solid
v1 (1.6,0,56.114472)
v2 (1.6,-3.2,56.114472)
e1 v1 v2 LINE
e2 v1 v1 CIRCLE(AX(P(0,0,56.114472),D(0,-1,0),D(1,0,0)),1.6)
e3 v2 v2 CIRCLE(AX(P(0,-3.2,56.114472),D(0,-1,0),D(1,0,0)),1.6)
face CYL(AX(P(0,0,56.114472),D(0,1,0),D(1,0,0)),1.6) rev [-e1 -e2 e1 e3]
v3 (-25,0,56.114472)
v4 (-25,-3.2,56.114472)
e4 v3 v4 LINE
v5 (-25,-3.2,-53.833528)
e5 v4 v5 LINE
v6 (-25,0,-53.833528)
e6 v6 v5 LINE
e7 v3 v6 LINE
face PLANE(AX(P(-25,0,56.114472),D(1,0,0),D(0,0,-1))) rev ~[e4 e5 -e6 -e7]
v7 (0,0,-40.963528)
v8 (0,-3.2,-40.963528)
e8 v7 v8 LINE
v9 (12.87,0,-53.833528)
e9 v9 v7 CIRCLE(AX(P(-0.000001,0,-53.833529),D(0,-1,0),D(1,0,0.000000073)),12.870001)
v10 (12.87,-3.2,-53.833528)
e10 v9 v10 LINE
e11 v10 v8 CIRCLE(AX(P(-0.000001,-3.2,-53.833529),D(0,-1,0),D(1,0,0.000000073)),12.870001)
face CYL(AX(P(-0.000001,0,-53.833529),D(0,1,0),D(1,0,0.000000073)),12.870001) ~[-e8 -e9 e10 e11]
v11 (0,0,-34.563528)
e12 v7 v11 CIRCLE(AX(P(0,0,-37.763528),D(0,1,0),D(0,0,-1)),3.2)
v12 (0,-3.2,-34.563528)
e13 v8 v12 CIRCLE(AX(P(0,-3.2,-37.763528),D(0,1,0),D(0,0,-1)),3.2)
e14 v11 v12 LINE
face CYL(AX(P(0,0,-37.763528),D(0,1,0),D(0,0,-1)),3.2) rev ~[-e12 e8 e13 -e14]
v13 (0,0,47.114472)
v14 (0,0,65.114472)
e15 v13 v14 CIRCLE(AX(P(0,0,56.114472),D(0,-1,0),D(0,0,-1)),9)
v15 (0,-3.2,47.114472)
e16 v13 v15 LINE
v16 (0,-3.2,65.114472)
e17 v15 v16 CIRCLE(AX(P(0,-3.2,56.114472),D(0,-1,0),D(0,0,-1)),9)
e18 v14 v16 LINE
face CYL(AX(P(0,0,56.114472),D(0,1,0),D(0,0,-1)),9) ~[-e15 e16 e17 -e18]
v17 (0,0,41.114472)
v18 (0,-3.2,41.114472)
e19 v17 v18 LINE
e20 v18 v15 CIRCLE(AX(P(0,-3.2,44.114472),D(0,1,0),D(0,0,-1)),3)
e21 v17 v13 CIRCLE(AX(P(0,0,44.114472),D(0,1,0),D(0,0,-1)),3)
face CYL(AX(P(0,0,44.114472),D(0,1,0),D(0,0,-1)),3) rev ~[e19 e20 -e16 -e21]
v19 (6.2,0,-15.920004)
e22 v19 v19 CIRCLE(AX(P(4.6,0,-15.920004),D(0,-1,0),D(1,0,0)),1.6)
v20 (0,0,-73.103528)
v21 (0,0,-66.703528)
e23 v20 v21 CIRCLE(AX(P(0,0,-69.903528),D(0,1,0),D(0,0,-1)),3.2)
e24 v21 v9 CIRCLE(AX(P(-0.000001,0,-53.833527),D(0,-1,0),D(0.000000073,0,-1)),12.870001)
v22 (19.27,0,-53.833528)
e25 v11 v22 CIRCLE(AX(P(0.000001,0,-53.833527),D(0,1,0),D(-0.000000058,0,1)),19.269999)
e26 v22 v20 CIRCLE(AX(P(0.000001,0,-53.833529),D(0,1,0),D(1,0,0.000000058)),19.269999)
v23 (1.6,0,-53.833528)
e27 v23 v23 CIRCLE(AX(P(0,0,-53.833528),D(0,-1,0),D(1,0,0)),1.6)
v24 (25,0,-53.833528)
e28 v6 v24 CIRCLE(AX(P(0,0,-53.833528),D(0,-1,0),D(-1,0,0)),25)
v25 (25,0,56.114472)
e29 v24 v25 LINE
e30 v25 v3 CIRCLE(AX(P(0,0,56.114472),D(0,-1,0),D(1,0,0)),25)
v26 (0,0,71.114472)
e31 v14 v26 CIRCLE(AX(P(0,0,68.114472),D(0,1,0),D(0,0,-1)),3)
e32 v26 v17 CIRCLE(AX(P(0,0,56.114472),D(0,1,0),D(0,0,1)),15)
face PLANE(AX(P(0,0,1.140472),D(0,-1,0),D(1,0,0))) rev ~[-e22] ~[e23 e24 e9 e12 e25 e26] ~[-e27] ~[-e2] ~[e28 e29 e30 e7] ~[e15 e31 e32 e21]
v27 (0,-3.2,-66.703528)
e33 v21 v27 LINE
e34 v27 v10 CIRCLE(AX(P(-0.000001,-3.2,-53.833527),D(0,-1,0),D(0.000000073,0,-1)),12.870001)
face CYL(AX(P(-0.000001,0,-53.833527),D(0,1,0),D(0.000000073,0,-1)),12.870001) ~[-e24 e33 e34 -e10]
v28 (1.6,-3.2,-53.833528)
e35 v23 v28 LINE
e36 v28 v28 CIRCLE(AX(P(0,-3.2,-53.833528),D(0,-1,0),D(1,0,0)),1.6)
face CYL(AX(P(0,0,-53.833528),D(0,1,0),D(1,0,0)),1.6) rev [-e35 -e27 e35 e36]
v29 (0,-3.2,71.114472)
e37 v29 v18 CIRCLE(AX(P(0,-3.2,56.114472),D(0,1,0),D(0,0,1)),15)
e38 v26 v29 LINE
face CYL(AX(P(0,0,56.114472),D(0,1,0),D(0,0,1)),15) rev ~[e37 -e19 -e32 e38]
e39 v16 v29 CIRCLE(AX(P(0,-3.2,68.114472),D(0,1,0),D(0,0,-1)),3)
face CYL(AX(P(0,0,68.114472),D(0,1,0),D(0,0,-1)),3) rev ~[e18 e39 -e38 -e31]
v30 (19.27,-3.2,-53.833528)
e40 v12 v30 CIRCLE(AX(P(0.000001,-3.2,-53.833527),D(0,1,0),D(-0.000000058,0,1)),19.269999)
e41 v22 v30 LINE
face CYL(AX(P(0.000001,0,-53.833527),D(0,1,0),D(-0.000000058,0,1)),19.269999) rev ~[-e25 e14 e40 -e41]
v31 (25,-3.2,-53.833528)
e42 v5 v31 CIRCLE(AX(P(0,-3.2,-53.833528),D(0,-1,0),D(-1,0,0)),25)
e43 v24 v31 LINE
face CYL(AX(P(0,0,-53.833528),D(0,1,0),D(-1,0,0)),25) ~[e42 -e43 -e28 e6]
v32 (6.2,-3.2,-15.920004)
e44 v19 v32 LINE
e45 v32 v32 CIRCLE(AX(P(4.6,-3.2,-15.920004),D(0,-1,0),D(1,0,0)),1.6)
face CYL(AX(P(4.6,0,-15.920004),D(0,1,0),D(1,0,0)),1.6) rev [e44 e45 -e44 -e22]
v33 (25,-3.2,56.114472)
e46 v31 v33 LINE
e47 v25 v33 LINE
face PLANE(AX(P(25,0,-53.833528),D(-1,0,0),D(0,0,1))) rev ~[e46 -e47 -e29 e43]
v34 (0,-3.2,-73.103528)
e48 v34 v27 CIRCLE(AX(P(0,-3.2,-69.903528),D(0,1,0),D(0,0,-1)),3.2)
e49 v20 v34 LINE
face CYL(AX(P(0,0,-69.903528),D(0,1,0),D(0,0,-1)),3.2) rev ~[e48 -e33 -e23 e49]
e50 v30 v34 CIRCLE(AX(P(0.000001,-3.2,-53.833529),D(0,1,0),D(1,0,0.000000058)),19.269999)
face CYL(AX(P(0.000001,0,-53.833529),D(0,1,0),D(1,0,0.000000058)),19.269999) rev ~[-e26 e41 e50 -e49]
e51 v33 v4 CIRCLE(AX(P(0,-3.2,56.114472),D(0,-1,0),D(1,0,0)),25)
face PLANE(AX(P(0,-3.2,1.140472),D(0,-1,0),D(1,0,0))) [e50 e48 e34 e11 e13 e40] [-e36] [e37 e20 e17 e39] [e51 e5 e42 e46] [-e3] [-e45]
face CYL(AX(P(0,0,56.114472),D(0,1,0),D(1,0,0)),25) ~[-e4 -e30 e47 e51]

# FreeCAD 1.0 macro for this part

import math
import FreeCAD as App
import Part
import Sketcher
from FreeCAD import Vector

doc = App.newDocument("Part")
body = doc.addObject("PartDesign::Body", "Body")

# Sketch on XZ plane
sketch1 = body.newObject("Sketcher::SketchObject", "Sketch")
sketch1.AttachmentSupport = (doc.getObject("XZ_Plane"), [""])
sketch1.MapMode = "FlatFace"
sketch1.addGeometry(Part.ArcOfCircle(Part.Circle(Vector(0, 56.1, 0), Vector(0, 0, 1), 25), math.radians(0), math.radians(180)), False)
sketch1.addGeometry(Part.LineSegment(Vector(-25, 56.1, 0), Vector(-25, -53.8, 0)), False)
sketch1.addGeometry(Part.ArcOfCircle(Part.Circle(Vector(0, -53.8, 0), Vector(0, 0, 1), 25), math.radians(180), math.radians(360)), False)
sketch1.addGeometry(Part.LineSegment(Vector(25, -53.8, 0), Vector(25, 56.1, 0)), False)
sketch1.addGeometry(Part.Circle(Vector(0, -53.8, 0), Vector(0, 0, 1), 1.6), False)
sketch1.addGeometry(Part.Circle(Vector(4.6, -15.9, 0), Vector(0, 0, 1), 1.6), False)
sketch1.addGeometry(Part.ArcOfCircle(Part.Circle(Vector(0, -53.8, 0), Vector(0, 0, 1), 19.3), math.radians(-90), math.radians(0)), False)
sketch1.addGeometry(Part.ArcOfCircle(Part.Circle(Vector(0, -69.9, 0), Vector(0, 0, 1), 3.2), math.radians(90), math.radians(270)), False)
sketch1.addGeometry(Part.ArcOfCircle(Part.Circle(Vector(0, -53.8, 0), Vector(0, 0, 1), 12.9), math.radians(-90), math.radians(0)), False)
sketch1.addGeometry(Part.ArcOfCircle(Part.Circle(Vector(0, -53.8, 0), Vector(0, 0, 1), 12.9), math.radians(0), math.radians(90)), False)
sketch1.addGeometry(Part.ArcOfCircle(Part.Circle(Vector(0, -37.8, 0), Vector(0, 0, 1), 3.2), math.radians(90), math.radians(270)), False)
sketch1.addGeometry(Part.ArcOfCircle(Part.Circle(Vector(0, -53.8, 0), Vector(0, 0, 1), 19.3), math.radians(0), math.radians(90)), False)
sketch1.addGeometry(Part.Circle(Vector(0, 56.1, 0), Vector(0, 0, 1), 1.6), False)
sketch1.addGeometry(Part.ArcOfCircle(Part.Circle(Vector(0, 56.1, 0), Vector(0, 0, 1), 15), math.radians(-90), math.radians(90)), False)
sketch1.addGeometry(Part.ArcOfCircle(Part.Circle(Vector(0, 44.1, 0), Vector(0, 0, 1), 3), math.radians(90), math.radians(270)), False)
sketch1.addGeometry(Part.ArcOfCircle(Part.Circle(Vector(0, 56.1, 0), Vector(0, 0, 1), 9), math.radians(-90), math.radians(90)), False)
sketch1.addGeometry(Part.ArcOfCircle(Part.Circle(Vector(0, 68.1, 0), Vector(0, 0, 1), 3), math.radians(90), math.radians(270)), False)
sketch1.addConstraint(Sketcher.Constraint("Tangent", 0, 2, 1, 1))
sketch1.addConstraint(Sketcher.Constraint("Tangent", 1, 2, 2, 1))
sketch1.addConstraint(Sketcher.Constraint("Tangent", 2, 2, 3, 1))
sketch1.addConstraint(Sketcher.Constraint("Tangent", 3, 2, 0, 1))
sketch1.addConstraint(Sketcher.Constraint("Tangent", 6, 1, 7, 2))
sketch1.addConstraint(Sketcher.Constraint("Tangent", 7, 1, 8, 1))
sketch1.addConstraint(Sketcher.Constraint("Tangent", 8, 2, 9, 1))
sketch1.addConstraint(Sketcher.Constraint("Tangent", 9, 2, 10, 2))
sketch1.addConstraint(Sketcher.Constraint("Tangent", 10, 1, 11, 2))
sketch1.addConstraint(Sketcher.Constraint("Tangent", 11, 1, 6, 2))
sketch1.addConstraint(Sketcher.Constraint("Tangent", 13, 1, 14, 2))
sketch1.addConstraint(Sketcher.Constraint("Tangent", 14, 1, 15, 1))
sketch1.addConstraint(Sketcher.Constraint("Tangent", 15, 2, 16, 2))
sketch1.addConstraint(Sketcher.Constraint("Tangent", 16, 1, 13, 2))
sketch1.addConstraint(Sketcher.Constraint("Vertical", 1))
sketch1.addConstraint(Sketcher.Constraint("Vertical", 3))
sketch1.addConstraint(Sketcher.Constraint("Coincident", 4, 3, 2, 3))
sketch1.addConstraint(Sketcher.Constraint("Coincident", 6, 3, 2, 3))
sketch1.addConstraint(Sketcher.Constraint("Coincident", 8, 3, 2, 3))
sketch1.addConstraint(Sketcher.Constraint("Coincident", 12, 3, 0, 3))
sketch1.addConstraint(Sketcher.Constraint("Coincident", 13, 3, 0, 3))
sketch1.addConstraint(Sketcher.Constraint("Coincident", 15, 3, 0, 3))
sketch1.addConstraint(Sketcher.Constraint("Equal", 4, 5))
sketch1.addConstraint(Sketcher.Constraint("Equal", 8, 9))
sketch1.addConstraint(Sketcher.Constraint("Equal", 7, 10))
sketch1.addConstraint(Sketcher.Constraint("Equal", 5, 12))
sketch1.addConstraint(Sketcher.Constraint("PointOnObject", 0, 3, -2))
sketch1.addConstraint(Sketcher.Constraint("PointOnObject", 7, 3, -2))
sketch1.addConstraint(Sketcher.Constraint("PointOnObject", 10, 3, -2))
sketch1.addConstraint(Sketcher.Constraint("PointOnObject", 14, 3, -2))
sketch1.addConstraint(Sketcher.Constraint("PointOnObject", 16, 3, -2))
sketch1.addConstraint(Sketcher.Constraint("Horizontal", 2, 2, 8, 2))
sketch1.addConstraint(Sketcher.Constraint("Horizontal", 8, 2, 11, 1))
sketch1.addConstraint(Sketcher.Constraint("Radius", 0, 25.0))
sketch1.addConstraint(Sketcher.Constraint("Radius", 13, 15.0))
sketch1.addConstraint(Sketcher.Constraint("Radius", 14, 3.0))
sketch1.addConstraint(Sketcher.Constraint("Diameter", 4, 3.2))
sketch1.addConstraint(Sketcher.Constraint("Radius", 7, 3.2))
sketch1.addConstraint(Sketcher.Constraint("Radius", 6, 19.269999))
sketch1.addConstraint(Sketcher.Constraint("DistanceX", -1, 1, 5, 3, 4.6))
sketch1.addConstraint(Sketcher.Constraint("DistanceY", 1, 2, 1, 1, 109.948))
sketch1.addConstraint(Sketcher.Constraint("DistanceY", 6, 3, -1, 1, 53.833529))
sketch1.addConstraint(Sketcher.Constraint("DistanceY", 5, 3, -1, 1, 15.920004))
pad1 = body.newObject("PartDesign::Pad", "Pad")
pad1.Profile = sketch1
pad1.Length = 3.2

doc.recompute()
